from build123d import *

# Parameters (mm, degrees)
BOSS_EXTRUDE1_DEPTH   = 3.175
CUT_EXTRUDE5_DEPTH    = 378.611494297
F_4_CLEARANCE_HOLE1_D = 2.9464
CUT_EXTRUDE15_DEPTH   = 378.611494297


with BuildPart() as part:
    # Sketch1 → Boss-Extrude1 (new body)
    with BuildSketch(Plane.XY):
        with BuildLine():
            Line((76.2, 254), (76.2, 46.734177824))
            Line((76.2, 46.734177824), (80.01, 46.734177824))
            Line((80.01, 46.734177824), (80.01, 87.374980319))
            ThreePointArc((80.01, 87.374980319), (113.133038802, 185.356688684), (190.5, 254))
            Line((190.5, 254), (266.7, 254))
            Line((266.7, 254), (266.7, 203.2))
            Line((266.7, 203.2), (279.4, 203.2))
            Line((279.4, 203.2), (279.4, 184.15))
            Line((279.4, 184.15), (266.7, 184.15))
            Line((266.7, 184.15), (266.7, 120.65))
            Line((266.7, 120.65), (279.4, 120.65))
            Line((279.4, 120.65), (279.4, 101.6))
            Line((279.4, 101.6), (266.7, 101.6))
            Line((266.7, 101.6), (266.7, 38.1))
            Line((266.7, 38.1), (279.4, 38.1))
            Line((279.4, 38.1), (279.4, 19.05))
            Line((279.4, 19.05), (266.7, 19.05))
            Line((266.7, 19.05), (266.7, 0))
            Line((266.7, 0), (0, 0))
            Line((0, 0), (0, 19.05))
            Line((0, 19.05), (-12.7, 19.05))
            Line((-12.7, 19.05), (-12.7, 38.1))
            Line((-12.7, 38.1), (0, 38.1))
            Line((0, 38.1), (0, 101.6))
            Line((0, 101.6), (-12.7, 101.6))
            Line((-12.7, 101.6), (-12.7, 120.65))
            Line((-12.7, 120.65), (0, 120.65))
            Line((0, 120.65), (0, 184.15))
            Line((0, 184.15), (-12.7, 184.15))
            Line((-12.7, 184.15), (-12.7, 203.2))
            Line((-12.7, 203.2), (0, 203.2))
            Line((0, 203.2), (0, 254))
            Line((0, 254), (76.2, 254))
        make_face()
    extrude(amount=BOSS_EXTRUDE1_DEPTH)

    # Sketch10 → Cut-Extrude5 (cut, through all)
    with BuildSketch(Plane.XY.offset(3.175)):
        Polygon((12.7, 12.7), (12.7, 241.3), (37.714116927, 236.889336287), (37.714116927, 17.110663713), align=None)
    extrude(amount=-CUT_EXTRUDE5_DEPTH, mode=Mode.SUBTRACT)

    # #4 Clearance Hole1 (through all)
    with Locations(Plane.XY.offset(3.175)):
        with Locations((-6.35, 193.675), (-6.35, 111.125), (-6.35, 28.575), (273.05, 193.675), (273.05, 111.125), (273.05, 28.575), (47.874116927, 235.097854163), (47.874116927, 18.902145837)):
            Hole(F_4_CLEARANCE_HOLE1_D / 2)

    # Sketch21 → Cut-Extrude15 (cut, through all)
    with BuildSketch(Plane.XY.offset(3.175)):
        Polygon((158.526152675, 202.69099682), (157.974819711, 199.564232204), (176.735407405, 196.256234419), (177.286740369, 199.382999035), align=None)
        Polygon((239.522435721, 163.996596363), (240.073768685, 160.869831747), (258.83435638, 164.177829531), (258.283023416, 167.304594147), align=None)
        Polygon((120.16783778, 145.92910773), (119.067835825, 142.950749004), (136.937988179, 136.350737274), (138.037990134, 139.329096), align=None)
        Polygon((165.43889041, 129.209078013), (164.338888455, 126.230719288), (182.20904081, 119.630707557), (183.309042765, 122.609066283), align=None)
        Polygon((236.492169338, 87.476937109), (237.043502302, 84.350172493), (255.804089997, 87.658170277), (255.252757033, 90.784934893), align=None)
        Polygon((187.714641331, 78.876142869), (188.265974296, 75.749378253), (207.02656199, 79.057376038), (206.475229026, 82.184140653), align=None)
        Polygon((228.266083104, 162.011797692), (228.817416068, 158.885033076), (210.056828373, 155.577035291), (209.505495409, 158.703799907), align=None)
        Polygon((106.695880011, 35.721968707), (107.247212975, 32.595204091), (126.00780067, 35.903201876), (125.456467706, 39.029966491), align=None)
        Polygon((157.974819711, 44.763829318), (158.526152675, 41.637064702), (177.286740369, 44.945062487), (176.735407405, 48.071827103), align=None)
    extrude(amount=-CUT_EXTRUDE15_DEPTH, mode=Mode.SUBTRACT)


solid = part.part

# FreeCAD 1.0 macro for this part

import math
import FreeCAD as App
import Part
import Sketcher
from FreeCAD import Vector
Q = App.Units.Quantity

doc = App.newDocument("Part")
body = doc.addObject("PartDesign::Body", "Body")

sketch1 = body.newObject("Sketcher::SketchObject", "Sketch")
sketch1.AttachmentSupport = (doc.getObject("XY_Plane"), [""])
sketch1.MapMode = "FlatFace"
sketch1.addGeometry([
    Part.LineSegment(Vector(76.2, 46.7, 0), Vector(76.2, 254, 0)),
    Part.LineSegment(Vector(76.2, 254, 0), Vector(0, 254, 0)),
    Part.LineSegment(Vector(0, 254, 0), Vector(0, 203.2, 0)),
    Part.LineSegment(Vector(0, 203.2, 0), Vector(-12.7, 203.2, 0)),
    Part.LineSegment(Vector(-12.7, 203.2, 0), Vector(-12.7, 184.2, 0)),
    Part.LineSegment(Vector(-12.7, 184.2, 0), Vector(0, 184.2, 0)),
    Part.LineSegment(Vector(0, 184.2, 0), Vector(0, 120.7, 0)),
    Part.LineSegment(Vector(0, 120.7, 0), Vector(-12.7, 120.7, 0)),
    Part.LineSegment(Vector(-12.7, 120.7, 0), Vector(-12.7, 101.6, 0)),
    Part.LineSegment(Vector(-12.7, 101.6, 0), Vector(0, 101.6, 0)),
    Part.LineSegment(Vector(0, 101.6, 0), Vector(0, 38.1, 0)),
    Part.LineSegment(Vector(0, 38.1, 0), Vector(-12.7, 38.1, 0)),
    Part.LineSegment(Vector(-12.7, 38.1, 0), Vector(-12.7, 19.1, 0)),
    Part.LineSegment(Vector(-12.7, 19.1, 0), Vector(0, 19.1, 0)),
    Part.LineSegment(Vector(0, 19.1, 0), Vector(0, 0, 0)),
    Part.LineSegment(Vector(0, 0, 0), Vector(266.7, 0, 0)),
    Part.LineSegment(Vector(266.7, 0, 0), Vector(266.7, 19.1, 0)),
    Part.LineSegment(Vector(266.7, 19.1, 0), Vector(279.4, 19.1, 0)),
    Part.LineSegment(Vector(279.4, 19.1, 0), Vector(279.4, 38.1, 0)),
    Part.LineSegment(Vector(279.4, 38.1, 0), Vector(266.7, 38.1, 0)),
    Part.LineSegment(Vector(266.7, 38.1, 0), Vector(266.7, 101.6, 0)),
    Part.LineSegment(Vector(266.7, 101.6, 0), Vector(279.4, 101.6, 0)),
    Part.LineSegment(Vector(279.4, 101.6, 0), Vector(279.4, 120.7, 0)),
    Part.LineSegment(Vector(279.4, 120.7, 0), Vector(266.7, 120.7, 0)),
    Part.LineSegment(Vector(266.7, 120.7, 0), Vector(266.7, 184.2, 0)),
    Part.LineSegment(Vector(266.7, 184.2, 0), Vector(279.4, 184.2, 0)),
    Part.LineSegment(Vector(279.4, 184.2, 0), Vector(279.4, 203.2, 0)),
    Part.LineSegment(Vector(279.4, 203.2, 0), Vector(266.7, 203.2, 0)),
    Part.LineSegment(Vector(266.7, 203.2, 0), Vector(266.7, 254, 0)),
    Part.LineSegment(Vector(266.7, 254, 0), Vector(190.5, 254, 0)),
    Part.ArcOfCircle(Part.Circle(Vector(281.1, 74, 0), Vector(0, 0, 1), 201.5), math.radians(117), math.radians(176)),
    Part.LineSegment(Vector(80, 87.4, 0), Vector(80, 46.7, 0)),
    Part.LineSegment(Vector(80, 46.7, 0), Vector(76.2, 46.7, 0)),
], False)
sketch1.addConstraint([
    Sketcher.Constraint("Coincident", 0, 2, 1, 1),
    Sketcher.Constraint("Coincident", 1, 2, 2, 1),
    Sketcher.Constraint("Coincident", 2, 2, 3, 1),
    Sketcher.Constraint("Coincident", 3, 2, 4, 1),
    Sketcher.Constraint("Coincident", 4, 2, 5, 1),
    Sketcher.Constraint("Coincident", 5, 2, 6, 1),
    Sketcher.Constraint("Coincident", 6, 2, 7, 1),
    Sketcher.Constraint("Coincident", 7, 2, 8, 1),
    Sketcher.Constraint("Coincident", 8, 2, 9, 1),
    Sketcher.Constraint("Coincident", 9, 2, 10, 1),
    Sketcher.Constraint("Coincident", 10, 2, 11, 1),
    Sketcher.Constraint("Coincident", 11, 2, 12, 1),
    Sketcher.Constraint("Coincident", 12, 2, 13, 1),
    Sketcher.Constraint("Coincident", 13, 2, 14, 1),
    Sketcher.Constraint("Coincident", 14, 2, 15, 1),
    Sketcher.Constraint("Coincident", 15, 2, 16, 1),
    Sketcher.Constraint("Coincident", 16, 2, 17, 1),
    Sketcher.Constraint("Coincident", 17, 2, 18, 1),
    Sketcher.Constraint("Coincident", 18, 2, 19, 1),
    Sketcher.Constraint("Coincident", 19, 2, 20, 1),
    Sketcher.Constraint("Coincident", 20, 2, 21, 1),
    Sketcher.Constraint("Coincident", 21, 2, 22, 1),
    Sketcher.Constraint("Coincident", 22, 2, 23, 1),
    Sketcher.Constraint("Coincident", 23, 2, 24, 1),
    Sketcher.Constraint("Coincident", 24, 2, 25, 1),
    Sketcher.Constraint("Coincident", 25, 2, 26, 1),
    Sketcher.Constraint("Coincident", 26, 2, 27, 1),
    Sketcher.Constraint("Coincident", 27, 2, 28, 1),
    Sketcher.Constraint("Coincident", 28, 2, 29, 1),
    Sketcher.Constraint("Coincident", 29, 2, 30, 1),
    Sketcher.Constraint("Coincident", 30, 2, 31, 1),
    Sketcher.Constraint("Coincident", 31, 2, 32, 1),
    Sketcher.Constraint("Coincident", 32, 2, 0, 1),
    Sketcher.Constraint("Vertical", 0),
    Sketcher.Constraint("Horizontal", 1),
    Sketcher.Constraint("Vertical", 2),
    Sketcher.Constraint("Horizontal", 3),
    Sketcher.Constraint("Vertical", 4),
    Sketcher.Constraint("Horizontal", 5),
    Sketcher.Constraint("Vertical", 6),
    Sketcher.Constraint("Horizontal", 7),
    Sketcher.Constraint("Vertical", 8),
    Sketcher.Constraint("Horizontal", 9),
    Sketcher.Constraint("Vertical", 10),
    Sketcher.Constraint("Horizontal", 11),
    Sketcher.Constraint("Vertical", 12),
    Sketcher.Constraint("Horizontal", 13),
    Sketcher.Constraint("Vertical", 14),
    Sketcher.Constraint("Horizontal", 15),
    Sketcher.Constraint("Vertical", 16),
    Sketcher.Constraint("Horizontal", 17),
    Sketcher.Constraint("Vertical", 18),
    Sketcher.Constraint("Horizontal", 19),
    Sketcher.Constraint("Vertical", 20),
    Sketcher.Constraint("Horizontal", 21),
    Sketcher.Constraint("Vertical", 22),
    Sketcher.Constraint("Horizontal", 23),
    Sketcher.Constraint("Vertical", 24),
    Sketcher.Constraint("Horizontal", 25),
    Sketcher.Constraint("Vertical", 26),
    Sketcher.Constraint("Horizontal", 27),
    Sketcher.Constraint("Vertical", 28),
    Sketcher.Constraint("Horizontal", 29),
    Sketcher.Constraint("Vertical", 31),
    Sketcher.Constraint("Horizontal", 32),
    Sketcher.Constraint("Coincident", 14, 2, -1, 1),
    Sketcher.Constraint("PointOnObject", 1, 2, -2),
    Sketcher.Constraint("PointOnObject", 5, 2, -2),
    Sketcher.Constraint("PointOnObject", 9, 2, -2),
    Sketcher.Constraint("Horizontal", 13, 2, 16, 2),
    Sketcher.Constraint("Horizontal", 11, 2, 18, 2),
    Sketcher.Constraint("Horizontal", 9, 2, 20, 2),
    Sketcher.Constraint("Horizontal", 7, 2, 22, 2),
    Sketcher.Constraint("Horizontal", 5, 2, 24, 2),
    Sketcher.Constraint("Horizontal", 3, 2, 26, 2),
    Sketcher.Constraint("Horizontal", 1, 2, 28, 2),
    Sketcher.Constraint("Vertical", 4, 2, 7, 2),
    Sketcher.Constraint("Vertical", 8, 2, 11, 2),
    Sketcher.Constraint("Vertical", 16, 2, 19, 2),
    Sketcher.Constraint("Vertical", 18, 2, 21, 2),
    Sketcher.Constraint("Vertical", 20, 2, 23, 2),
    Sketcher.Constraint("Vertical", 22, 2, 25, 2),
    Sketcher.Constraint("Vertical", 24, 2, 27, 2),
    Sketcher.Constraint("Equal", 13, 17),
    Sketcher.Constraint("Equal", 1, 29),
    Sketcher.Constraint("Equal", 4, 8),
    Sketcher.Constraint("Equal", 6, 10),
    Sketcher.Constraint("Equal", 8, 12),
    Sketcher.Constraint("Equal", 12, 14),
    Sketcher.Constraint("DistanceX", 1, 2, 1, 1, Q("3 in")),
    Sketcher.Constraint("DistanceY", 2, 2, 2, 1, Q("2 in")),
    Sketcher.Constraint("DistanceX", 3, 2, 3, 1, Q("0.5 in")),
    Sketcher.Constraint("DistanceX", 15, 1, 15, 2, Q("10.5 in")),
    Sketcher.Constraint("DistanceY", 6, 2, 6, 1, Q("2.5 in")),
    Sketcher.Constraint("DistanceY", -1, 1, 0, 2, Q("10 in")),
    Sketcher.Constraint("DistanceX", 32, 2, 32, 1, Q("0.15 in")),
    Sketcher.Constraint("Radius", 30, Q("201.508492 mm")),
    Sketcher.Constraint("DistanceY", 0, 1, 0, 2, Q("207.265822 mm")),
    Sketcher.Constraint("DistanceY", 31, 2, 31, 1, Q("40.640802 mm")),
])
pad1 = body.newObject("PartDesign::Pad", "Pad")
pad1.Profile = sketch1
pad1.Length = Q("0.125 in")

sketch2 = body.newObject("Sketcher::SketchObject", "Sketch001")
sketch2.AttachmentSupport = (doc.getObject("XY_Plane"), [""])
sketch2.MapMode = "FlatFace"
sketch2.AttachmentOffset = App.Placement(Vector(0, 0, 0.125 * 25.4), App.Rotation())
sketch2.addGeometry([
    Part.LineSegment(Vector(13, 241, 0), Vector(13, 13, 0)),
    Part.LineSegment(Vector(13, 13, 0), Vector(38, 17, 0)),
    Part.LineSegment(Vector(38, 17, 0), Vector(38, 237, 0)),
    Part.LineSegment(Vector(38, 237, 0), Vector(13, 241, 0)),
], False)
sketch2.addConstraint([
    Sketcher.Constraint("Coincident", 0, 2, 1, 1),
    Sketcher.Constraint("Coincident", 1, 2, 2, 1),
    Sketcher.Constraint("Coincident", 2, 2, 3, 1),
    Sketcher.Constraint("Coincident", 3, 2, 0, 1),
    Sketcher.Constraint("Vertical", 0),
    Sketcher.Constraint("Vertical", 2),
    Sketcher.Constraint("Equal", 1, 3),
    Sketcher.Constraint("DistanceY", 0, 2, 0, 1, Q("9 in")),
    Sketcher.Constraint("Distance", 1, Q("1 in")),
    Sketcher.Constraint("Angle", 1, Q("10 deg")),
    Sketcher.Constraint("DistanceX", -1, 1, 0, 2, Q("0.5 in")),
    Sketcher.Constraint("DistanceY", -1, 1, 0, 2, Q("0.5 in")),
])
pocket1 = body.newObject("PartDesign::Pocket", "Pocket")
pocket1.Profile = sketch2
pocket1.Type = "ThroughAll"

sketch3 = body.newObject("Sketcher::SketchObject", "Sketch002")
sketch3.AttachmentSupport = (doc.getObject("XY_Plane"), [""])
sketch3.MapMode = "FlatFace"
sketch3.AttachmentOffset = App.Placement(Vector(0, 0, 0.125 * 25.4), App.Rotation())
sketch3.addGeometry([
    Part.Circle(Vector(-6.3, 193.7, 0), Vector(0, 0, 1), 1.5),
    Part.Circle(Vector(-6.3, 111.1, 0), Vector(0, 0, 1), 1.5),
    Part.Circle(Vector(-6.3, 28.6, 0), Vector(0, 0, 1), 1.5),
    Part.Circle(Vector(273.1, 193.7, 0), Vector(0, 0, 1), 1.5),
    Part.Circle(Vector(273.1, 111.1, 0), Vector(0, 0, 1), 1.5),
    Part.Circle(Vector(273.1, 28.6, 0), Vector(0, 0, 1), 1.5),
    Part.Circle(Vector(47.9, 235.1, 0), Vector(0, 0, 1), 1.5),
    Part.Circle(Vector(47.9, 18.9, 0), Vector(0, 0, 1), 1.5),
], False)
sketch3.addConstraint([
    Sketcher.Constraint("Equal", 0, 1),
    Sketcher.Constraint("Equal", 1, 2),
    Sketcher.Constraint("Equal", 2, 3),
    Sketcher.Constraint("Equal", 3, 4),
    Sketcher.Constraint("Equal", 4, 5),
    Sketcher.Constraint("Equal", 5, 6),
    Sketcher.Constraint("Equal", 6, 7),
    Sketcher.Constraint("Horizontal", 0, 3, 3, 3),
    Sketcher.Constraint("Horizontal", 1, 3, 4, 3),
    Sketcher.Constraint("Horizontal", 2, 3, 5, 3),
    Sketcher.Constraint("Vertical", 0, 3, 1, 3),
    Sketcher.Constraint("Vertical", 1, 3, 2, 3),
    Sketcher.Constraint("Vertical", 3, 3, 4, 3),
    Sketcher.Constraint("Vertical", 4, 3, 5, 3),
    Sketcher.Constraint("Vertical", 6, 3, 7, 3),
    Sketcher.Constraint("Diameter", 0, Q("0.116 in")),
    Sketcher.Constraint("DistanceX", 0, 3, 3, 3, Q("11 in")),
    Sketcher.Constraint("DistanceY", 2, 3, 0, 3, Q("6.5 in")),
    Sketcher.Constraint("DistanceX", 0, 3, -1, 1, Q("0.25 in")),
    Sketcher.Constraint("DistanceY", 1, 3, 0, 3, Q("3.25 in")),
    Sketcher.Constraint("DistanceY", -1, 1, 0, 3, Q("7.625 in")),
    Sketcher.Constraint("DistanceY", 7, 3, 6, 3, Q("216.195708 mm")),
    Sketcher.Constraint("DistanceX", -1, 1, 6, 3, Q("47.874117 mm")),
    Sketcher.Constraint("DistanceY", -1, 1, 6, 3, Q("235.097854 mm")),
])
doc.recompute()
hole = body.newObject("PartDesign::Hole", "Hole")
hole.Profile = sketch3
hole.ThreadType = "None"
hole.Diameter = Q("0.116 in")
hole.DepthType = "ThroughAll"

sketch4 = body.newObject("Sketcher::SketchObject", "Sketch003")
sketch4.AttachmentSupport = (doc.getObject("XY_Plane"), [""])
sketch4.MapMode = "FlatFace"
sketch4.AttachmentOffset = App.Placement(Vector(0, 0, 0.125 * 25.4), App.Rotation())
sketch4.addGeometry([
    Part.LineSegment(Vector(158.5, 202.7, 0), Vector(158, 199.6, 0)),
    Part.LineSegment(Vector(158, 199.6, 0), Vector(176.7, 196.3, 0)),
    Part.LineSegment(Vector(176.7, 196.3, 0), Vector(177.3, 199.4, 0)),
    Part.LineSegment(Vector(177.3, 199.4, 0), Vector(158.5, 202.7, 0)),
    Part.LineSegment(Vector(239.5, 164, 0), Vector(240.1, 160.9, 0)),
    Part.LineSegment(Vector(240.1, 160.9, 0), Vector(258.8, 164.2, 0)),
    Part.LineSegment(Vector(258.8, 164.2, 0), Vector(258.3, 167.3, 0)),
    Part.LineSegment(Vector(258.3, 167.3, 0), Vector(239.5, 164, 0)),
    Part.LineSegment(Vector(120.2, 145.9, 0), Vector(119.1, 143, 0)),
    Part.LineSegment(Vector(119.1, 143, 0), Vector(136.9, 136.4, 0)),
    Part.LineSegment(Vector(136.9, 136.4, 0), Vector(138, 139.3, 0)),
    Part.LineSegment(Vector(138, 139.3, 0), Vector(120.2, 145.9, 0)),
    Part.LineSegment(Vector(165.4, 129.2, 0), Vector(164.3, 126.2, 0)),
    Part.LineSegment(Vector(164.3, 126.2, 0), Vector(182.2, 119.6, 0)),
    Part.LineSegment(Vector(182.2, 119.6, 0), Vector(183.3, 122.6, 0)),
    Part.LineSegment(Vector(183.3, 122.6, 0), Vector(165.4, 129.2, 0)),
    Part.LineSegment(Vector(236.5, 87.5, 0), Vector(237, 84.4, 0)),
    Part.LineSegment(Vector(237, 84.4, 0), Vector(255.8, 87.7, 0)),
    Part.LineSegment(Vector(255.8, 87.7, 0), Vector(255.3, 90.8, 0)),
    Part.LineSegment(Vector(255.3, 90.8, 0), Vector(236.5, 87.5, 0)),
    Part.LineSegment(Vector(187.7, 78.9, 0), Vector(188.3, 75.7, 0)),
    Part.LineSegment(Vector(188.3, 75.7, 0), Vector(207, 79.1, 0)),
    Part.LineSegment(Vector(207, 79.1, 0), Vector(206.5, 82.2, 0)),
    Part.LineSegment(Vector(206.5, 82.2, 0), Vector(187.7, 78.9, 0)),
    Part.LineSegment(Vector(228.8, 158.9, 0), Vector(228.3, 162, 0)),
    Part.LineSegment(Vector(228.3, 162, 0), Vector(209.5, 158.7, 0)),
    Part.LineSegment(Vector(209.5, 158.7, 0), Vector(210.1, 155.6, 0)),
    Part.LineSegment(Vector(210.1, 155.6, 0), Vector(228.8, 158.9, 0)),
    Part.LineSegment(Vector(106.7, 35.7, 0), Vector(107.2, 32.6, 0)),
    Part.LineSegment(Vector(107.2, 32.6, 0), Vector(126, 35.9, 0)),
    Part.LineSegment(Vector(126, 35.9, 0), Vector(125.5, 39, 0)),
    Part.LineSegment(Vector(125.5, 39, 0), Vector(106.7, 35.7, 0)),
    Part.LineSegment(Vector(158, 44.8, 0), Vector(158.5, 41.6, 0)),
    Part.LineSegment(Vector(158.5, 41.6, 0), Vector(177.3, 44.9, 0)),
    Part.LineSegment(Vector(177.3, 44.9, 0), Vector(176.7, 48.1, 0)),
    Part.LineSegment(Vector(176.7, 48.1, 0), Vector(158, 44.8, 0)),
], False)
sketch4.addConstraint([
    Sketcher.Constraint("Coincident", 0, 2, 1, 1),
    Sketcher.Constraint("Coincident", 1, 2, 2, 1),
    Sketcher.Constraint("Coincident", 2, 2, 3, 1),
    Sketcher.Constraint("Coincident", 3, 2, 0, 1),
    Sketcher.Constraint("Coincident", 4, 2, 5, 1),
    Sketcher.Constraint("Coincident", 5, 2, 6, 1),
    Sketcher.Constraint("Coincident", 6, 2, 7, 1),
    Sketcher.Constraint("Coincident", 7, 2, 4, 1),
    Sketcher.Constraint("Coincident", 8, 2, 9, 1),
    Sketcher.Constraint("Coincident", 9, 2, 10, 1),
    Sketcher.Constraint("Coincident", 10, 2, 11, 1),
    Sketcher.Constraint("Coincident", 11, 2, 8, 1),
    Sketcher.Constraint("Coincident", 12, 2, 13, 1),
    Sketcher.Constraint("Coincident", 13, 2, 14, 1),
    Sketcher.Constraint("Coincident", 14, 2, 15, 1),
    Sketcher.Constraint("Coincident", 15, 2, 12, 1),
    Sketcher.Constraint("Coincident", 16, 2, 17, 1),
    Sketcher.Constraint("Coincident", 17, 2, 18, 1),
    Sketcher.Constraint("Coincident", 18, 2, 19, 1),
    Sketcher.Constraint("Coincident", 19, 2, 16, 1),
    Sketcher.Constraint("Coincident", 20, 2, 21, 1),
    Sketcher.Constraint("Coincident", 21, 2, 22, 1),
    Sketcher.Constraint("Coincident", 22, 2, 23, 1),
    Sketcher.Constraint("Coincident", 23, 2, 20, 1),
    Sketcher.Constraint("Coincident", 24, 2, 25, 1),
    Sketcher.Constraint("Coincident", 25, 2, 26, 1),
    Sketcher.Constraint("Coincident", 26, 2, 27, 1),
    Sketcher.Constraint("Coincident", 27, 2, 24, 1),
    Sketcher.Constraint("Coincident", 28, 2, 29, 1),
    Sketcher.Constraint("Coincident", 29, 2, 30, 1),
    Sketcher.Constraint("Coincident", 30, 2, 31, 1),
    Sketcher.Constraint("Coincident", 31, 2, 28, 1),
    Sketcher.Constraint("Coincident", 32, 2, 33, 1),
    Sketcher.Constraint("Coincident", 33, 2, 34, 1),
    Sketcher.Constraint("Coincident", 34, 2, 35, 1),
    Sketcher.Constraint("Coincident", 35, 2, 32, 1),
    Sketcher.Constraint("Perpendicular", 0, 1),
    Sketcher.Constraint("Perpendicular", 1, 2),
    Sketcher.Constraint("Perpendicular", 2, 3),
    Sketcher.Constraint("Perpendicular", 4, 5),
    Sketcher.Constraint("Perpendicular", 5, 6),
    Sketcher.Constraint("Perpendicular", 6, 7),
    Sketcher.Constraint("Perpendicular", 8, 9),
    Sketcher.Constraint("Perpendicular", 9, 10),
    Sketcher.Constraint("Perpendicular", 10, 11),
    Sketcher.Constraint("Perpendicular", 11, 12),
    Sketcher.Constraint("Perpendicular", 12, 13),
    Sketcher.Constraint("Perpendicular", 13, 14),
    Sketcher.Constraint("Perpendicular", 14, 15),
    Sketcher.Constraint("Perpendicular", 7, 16),
    Sketcher.Constraint("Perpendicular", 16, 17),
    Sketcher.Constraint("Perpendicular", 17, 18),
    Sketcher.Constraint("Perpendicular", 18, 19),
    Sketcher.Constraint("Perpendicular", 19, 20),
    Sketcher.Constraint("Perpendicular", 20, 21),
    Sketcher.Constraint("Perpendicular", 21, 22),
    Sketcher.Constraint("Perpendicular", 22, 23),
    Sketcher.Constraint("Perpendicular", 23, 24),
    Sketcher.Constraint("Perpendicular", 24, 25),
    Sketcher.Constraint("Perpendicular", 25, 26),
    Sketcher.Constraint("Perpendicular", 26, 27),
    Sketcher.Constraint("Perpendicular", 27, 28),
    Sketcher.Constraint("Perpendicular", 28, 29),
    Sketcher.Constraint("Perpendicular", 29, 30),
    Sketcher.Constraint("Perpendicular", 30, 31),
    Sketcher.Constraint("Perpendicular", 31, 32),
    Sketcher.Constraint("Perpendicular", 32, 33),
    Sketcher.Constraint("Perpendicular", 33, 34),
    Sketcher.Constraint("Perpendicular", 34, 35),
    Sketcher.Constraint("Vertical", 3, 2, 32, 2),
    Sketcher.Constraint("Vertical", 2, 2, 33, 2),
    Sketcher.Constraint("Vertical", 1, 2, 34, 2),
    Sketcher.Constraint("Equal", 2, 4),
    Sketcher.Constraint("Equal", 3, 5),
    Sketcher.Constraint("Equal", 6, 8),
    Sketcher.Constraint("Equal", 7, 9),
    Sketcher.Constraint("Equal", 10, 12),
    Sketcher.Constraint("Equal", 11, 13),
    Sketcher.Constraint("Equal", 14, 16),
    Sketcher.Constraint("Equal", 15, 17),
    Sketcher.Constraint("Equal", 18, 20),
    Sketcher.Constraint("Equal", 19, 21),
    Sketcher.Constraint("Equal", 22, 24),
    Sketcher.Constraint("Equal", 23, 25),
    Sketcher.Constraint("Equal", 26, 28),
    Sketcher.Constraint("Equal", 27, 29),
    Sketcher.Constraint("Equal", 30, 32),
    Sketcher.Constraint("Angle", 0, Q("-100 deg")),
    Sketcher.Constraint("Distance", 1, Q("0.75 in")),
    Sketcher.Constraint("Distance", 0, Q("0.125 in")),
    Sketcher.Constraint("DistanceY", -1, 1, 2, 2, Q("199.382999 mm")),
    Sketcher.Constraint("DistanceY", -1, 1, 25, 2, Q("158.7038 mm")),
    Sketcher.Constraint("DistanceX", -1, 1, 29, 2, Q("126.007801 mm")),
    Sketcher.Constraint("DistanceY", -1, 1, 29, 2, Q("35.903202 mm")),
    Sketcher.Constraint("DistanceY", 4, 2, 0, 2, Q("38.6944 mm")),
    Sketcher.Constraint("DistanceX", 8, 2, 7, 2, Q("120.4546 mm")),
    Sketcher.Constraint("DistanceX", 9, 2, 10, 2, Q("1.100002 mm")),
    Sketcher.Constraint("DistanceY", 10, 2, 3, 2, Q("63.361901 mm")),
    Sketcher.Constraint("DistanceX", 9, 2, 12, 2, Q("27.4009 mm")),
    Sketcher.Constraint("DistanceY", 13, 2, 11, 2, Q("26.2984 mm")),
    Sketcher.Constraint("DistanceX", 18, 2, 5, 2, Q("3.581599 mm")),
    Sketcher.Constraint("DistanceX", 13, 2, 23, 2, Q("5.505601 mm")),
    Sketcher.Constraint("DistanceY", 30, 2, 32, 2, Q("2.607098 mm")),
    Sketcher.Constraint("DistanceX", 33, 2, 23, 2, Q("10.427901 mm")),
    Sketcher.Constraint("DistanceX", -1, 1, 0, 2, Q("157.97482 mm")),
    Sketcher.Constraint("DistanceY", -1, 1, 17, 2, Q("87.65817 mm")),
    Sketcher.Constraint("DistanceY", -1, 1, 20, 2, Q("75.749378 mm")),
    Sketcher.Constraint("DistanceX", -1, 1, 26, 2, Q("210.056828 mm")),
])
pocket2 = body.newObject("PartDesign::Pocket", "Pocket001")
pocket2.Profile = sketch4
pocket2.Type = "ThroughAll"

doc.recompute()
